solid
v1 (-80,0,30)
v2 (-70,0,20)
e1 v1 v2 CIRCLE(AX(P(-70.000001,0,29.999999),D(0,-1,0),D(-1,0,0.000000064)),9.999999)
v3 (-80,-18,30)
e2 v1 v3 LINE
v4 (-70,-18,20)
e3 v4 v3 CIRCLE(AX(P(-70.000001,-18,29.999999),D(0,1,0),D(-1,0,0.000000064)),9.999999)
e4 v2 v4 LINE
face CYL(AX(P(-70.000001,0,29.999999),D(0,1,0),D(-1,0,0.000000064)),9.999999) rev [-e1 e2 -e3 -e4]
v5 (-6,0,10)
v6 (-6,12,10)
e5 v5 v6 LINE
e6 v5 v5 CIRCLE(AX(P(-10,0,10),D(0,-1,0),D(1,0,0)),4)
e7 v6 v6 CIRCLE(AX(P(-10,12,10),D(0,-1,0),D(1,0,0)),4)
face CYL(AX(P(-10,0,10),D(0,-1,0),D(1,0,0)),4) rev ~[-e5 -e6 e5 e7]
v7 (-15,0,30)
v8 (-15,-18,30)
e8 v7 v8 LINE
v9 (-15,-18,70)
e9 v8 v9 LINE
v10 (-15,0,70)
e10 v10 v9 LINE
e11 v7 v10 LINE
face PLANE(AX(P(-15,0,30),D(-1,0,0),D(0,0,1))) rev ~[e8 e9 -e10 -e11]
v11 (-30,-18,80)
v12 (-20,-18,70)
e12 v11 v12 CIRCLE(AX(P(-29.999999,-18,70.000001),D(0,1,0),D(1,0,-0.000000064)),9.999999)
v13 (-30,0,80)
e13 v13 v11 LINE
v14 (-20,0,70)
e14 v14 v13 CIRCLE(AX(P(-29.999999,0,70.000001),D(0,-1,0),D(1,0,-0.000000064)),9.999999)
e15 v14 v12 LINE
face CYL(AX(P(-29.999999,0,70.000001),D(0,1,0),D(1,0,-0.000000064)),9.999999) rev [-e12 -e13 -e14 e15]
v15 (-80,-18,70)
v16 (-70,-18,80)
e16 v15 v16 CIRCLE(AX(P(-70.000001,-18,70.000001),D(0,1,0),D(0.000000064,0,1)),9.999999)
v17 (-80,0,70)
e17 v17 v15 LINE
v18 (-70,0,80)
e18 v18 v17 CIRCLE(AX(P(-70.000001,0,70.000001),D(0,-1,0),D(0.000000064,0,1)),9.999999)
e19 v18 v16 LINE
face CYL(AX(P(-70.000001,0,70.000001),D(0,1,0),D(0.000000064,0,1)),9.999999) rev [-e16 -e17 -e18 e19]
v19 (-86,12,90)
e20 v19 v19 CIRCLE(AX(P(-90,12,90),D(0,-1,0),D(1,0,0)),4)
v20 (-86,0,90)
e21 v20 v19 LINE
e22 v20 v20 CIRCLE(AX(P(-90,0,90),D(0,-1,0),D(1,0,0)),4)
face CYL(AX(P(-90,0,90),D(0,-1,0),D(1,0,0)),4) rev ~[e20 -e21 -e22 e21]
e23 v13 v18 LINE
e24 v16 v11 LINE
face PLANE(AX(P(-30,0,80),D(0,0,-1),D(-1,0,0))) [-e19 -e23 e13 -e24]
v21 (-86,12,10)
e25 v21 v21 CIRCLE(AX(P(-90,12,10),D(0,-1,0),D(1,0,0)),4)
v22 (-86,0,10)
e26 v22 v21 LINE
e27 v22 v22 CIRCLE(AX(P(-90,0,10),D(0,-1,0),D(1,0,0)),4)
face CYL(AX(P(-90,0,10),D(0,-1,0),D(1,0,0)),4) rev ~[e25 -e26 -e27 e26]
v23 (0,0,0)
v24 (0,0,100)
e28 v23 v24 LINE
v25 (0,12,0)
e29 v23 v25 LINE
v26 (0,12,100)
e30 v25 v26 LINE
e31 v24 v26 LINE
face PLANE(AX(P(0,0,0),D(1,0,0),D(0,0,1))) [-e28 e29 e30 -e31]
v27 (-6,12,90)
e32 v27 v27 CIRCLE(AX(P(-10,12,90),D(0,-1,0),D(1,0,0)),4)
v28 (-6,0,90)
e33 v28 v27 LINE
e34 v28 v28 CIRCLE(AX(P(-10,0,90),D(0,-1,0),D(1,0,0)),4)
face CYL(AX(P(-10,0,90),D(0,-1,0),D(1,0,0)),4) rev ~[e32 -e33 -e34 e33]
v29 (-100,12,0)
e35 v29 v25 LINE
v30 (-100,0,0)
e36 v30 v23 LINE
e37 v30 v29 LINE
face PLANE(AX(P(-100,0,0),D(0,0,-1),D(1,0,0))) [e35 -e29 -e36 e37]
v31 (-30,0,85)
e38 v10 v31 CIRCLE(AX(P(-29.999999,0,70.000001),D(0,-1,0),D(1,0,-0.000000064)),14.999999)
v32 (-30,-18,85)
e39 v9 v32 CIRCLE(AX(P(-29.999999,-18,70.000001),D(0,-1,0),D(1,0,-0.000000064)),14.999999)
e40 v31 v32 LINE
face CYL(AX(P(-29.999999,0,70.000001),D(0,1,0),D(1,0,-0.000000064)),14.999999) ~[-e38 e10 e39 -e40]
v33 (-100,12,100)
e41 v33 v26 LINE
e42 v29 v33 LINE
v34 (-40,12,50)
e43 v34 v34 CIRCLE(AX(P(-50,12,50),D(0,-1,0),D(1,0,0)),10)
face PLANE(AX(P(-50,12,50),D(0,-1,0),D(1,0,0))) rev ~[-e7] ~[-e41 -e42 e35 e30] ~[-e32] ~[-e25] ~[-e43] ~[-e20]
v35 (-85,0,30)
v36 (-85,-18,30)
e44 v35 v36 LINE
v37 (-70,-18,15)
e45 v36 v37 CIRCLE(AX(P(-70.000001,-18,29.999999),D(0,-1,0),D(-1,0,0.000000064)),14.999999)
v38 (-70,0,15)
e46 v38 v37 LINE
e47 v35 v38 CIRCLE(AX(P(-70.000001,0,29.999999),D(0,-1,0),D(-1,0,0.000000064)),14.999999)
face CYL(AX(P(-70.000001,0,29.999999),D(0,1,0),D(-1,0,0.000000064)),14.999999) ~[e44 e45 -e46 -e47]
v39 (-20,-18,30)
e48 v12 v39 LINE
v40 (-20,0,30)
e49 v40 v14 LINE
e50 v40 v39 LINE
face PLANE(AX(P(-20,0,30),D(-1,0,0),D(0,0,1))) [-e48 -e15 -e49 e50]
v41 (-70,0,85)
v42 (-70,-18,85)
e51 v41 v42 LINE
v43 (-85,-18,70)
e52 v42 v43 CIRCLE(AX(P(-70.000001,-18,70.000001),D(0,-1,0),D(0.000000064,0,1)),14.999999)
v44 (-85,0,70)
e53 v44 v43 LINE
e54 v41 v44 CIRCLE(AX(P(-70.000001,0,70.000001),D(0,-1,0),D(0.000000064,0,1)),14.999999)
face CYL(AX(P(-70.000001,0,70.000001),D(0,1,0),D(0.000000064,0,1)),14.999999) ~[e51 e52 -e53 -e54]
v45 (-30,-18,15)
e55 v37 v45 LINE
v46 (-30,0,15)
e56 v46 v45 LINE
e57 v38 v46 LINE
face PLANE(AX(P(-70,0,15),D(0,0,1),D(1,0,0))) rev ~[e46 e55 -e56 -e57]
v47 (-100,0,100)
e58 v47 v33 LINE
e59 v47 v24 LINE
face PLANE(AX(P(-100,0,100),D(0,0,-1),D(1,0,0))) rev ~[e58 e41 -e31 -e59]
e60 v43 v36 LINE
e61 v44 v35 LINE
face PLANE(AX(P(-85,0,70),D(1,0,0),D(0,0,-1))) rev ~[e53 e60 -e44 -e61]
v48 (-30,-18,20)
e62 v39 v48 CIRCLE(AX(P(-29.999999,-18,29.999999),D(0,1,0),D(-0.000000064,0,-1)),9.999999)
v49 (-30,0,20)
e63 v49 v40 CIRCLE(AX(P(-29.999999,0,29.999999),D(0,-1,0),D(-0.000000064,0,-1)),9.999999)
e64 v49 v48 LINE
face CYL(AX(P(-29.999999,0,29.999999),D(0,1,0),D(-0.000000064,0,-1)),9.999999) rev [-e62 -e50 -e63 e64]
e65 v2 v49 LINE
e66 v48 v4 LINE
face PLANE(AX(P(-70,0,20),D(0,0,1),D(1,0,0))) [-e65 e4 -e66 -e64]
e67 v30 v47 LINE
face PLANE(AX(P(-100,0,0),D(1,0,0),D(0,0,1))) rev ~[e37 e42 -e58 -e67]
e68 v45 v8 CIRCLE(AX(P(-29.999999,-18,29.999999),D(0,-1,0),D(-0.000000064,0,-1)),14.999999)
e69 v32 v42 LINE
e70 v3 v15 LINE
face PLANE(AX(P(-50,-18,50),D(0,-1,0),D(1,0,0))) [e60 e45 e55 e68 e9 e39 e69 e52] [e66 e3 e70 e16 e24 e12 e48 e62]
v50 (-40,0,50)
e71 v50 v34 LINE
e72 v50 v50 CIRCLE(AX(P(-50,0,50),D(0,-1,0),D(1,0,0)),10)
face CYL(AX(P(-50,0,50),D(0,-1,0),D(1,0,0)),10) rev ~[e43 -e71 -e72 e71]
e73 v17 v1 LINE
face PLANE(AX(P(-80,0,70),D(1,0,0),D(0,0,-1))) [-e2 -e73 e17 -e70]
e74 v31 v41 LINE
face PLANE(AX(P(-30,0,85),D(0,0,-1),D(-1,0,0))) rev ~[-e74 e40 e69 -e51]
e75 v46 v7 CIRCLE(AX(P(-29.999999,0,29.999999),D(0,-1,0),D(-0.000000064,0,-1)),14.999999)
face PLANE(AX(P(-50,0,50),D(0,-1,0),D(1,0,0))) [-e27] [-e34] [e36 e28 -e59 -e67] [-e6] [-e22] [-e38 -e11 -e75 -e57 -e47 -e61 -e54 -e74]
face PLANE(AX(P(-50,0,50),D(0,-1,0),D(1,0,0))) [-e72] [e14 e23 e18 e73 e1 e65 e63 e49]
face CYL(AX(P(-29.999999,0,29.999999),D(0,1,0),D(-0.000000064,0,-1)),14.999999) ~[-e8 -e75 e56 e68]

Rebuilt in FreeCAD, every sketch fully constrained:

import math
import FreeCAD as App
import Part
import Sketcher

V = App.Vector

doc = App.newDocument("Part")
body = doc.addObject("PartDesign::Body", "Body")

# Sketch on XZ plane
sketch1 = doc.addObject("Sketcher::SketchObject", "Sketch")
body.addObject(sketch1)
sketch1.AttachmentSupport = (doc.XZ_Plane, [""])
sketch1.MapMode = "FlatFace"
sketch1.addGeometry(Part.LineSegment(V(-100, 100, 0), V(-100, 0, 0)), False)
sketch1.addGeometry(Part.LineSegment(V(-100, 0, 0), V(0, 0, 0)), False)
sketch1.addGeometry(Part.LineSegment(V(0, 0, 0), V(0, 100, 0)), False)
sketch1.addGeometry(Part.LineSegment(V(0, 100, 0), V(-100, 100, 0)), False)
sketch1.addConstraint(Sketcher.Constraint("Coincident", 0, 2, 1, 1))
sketch1.addConstraint(Sketcher.Constraint("Coincident", 1, 2, 2, 1))
sketch1.addConstraint(Sketcher.Constraint("Coincident", 2, 2, 3, 1))
sketch1.addConstraint(Sketcher.Constraint("Coincident", 3, 2, 0, 1))
sketch1.addConstraint(Sketcher.Constraint("Vertical", 0))
sketch1.addConstraint(Sketcher.Constraint("Horizontal", 1))
sketch1.addConstraint(Sketcher.Constraint("Vertical", 2))
sketch1.addConstraint(Sketcher.Constraint("Horizontal", 3))
sketch1.addConstraint(Sketcher.Constraint("Coincident", 1, 2, -1, 1))
sketch1.addConstraint(Sketcher.Constraint("Equal", 3, 0))
sketch1.addConstraint(Sketcher.Constraint("DistanceX", 1, 1, 1, 2, 100.0))
pad1 = doc.addObject("PartDesign::Pad", "Pad")
body.addObject(pad1)
pad1.Profile = sketch1
pad1.Length = 12
pad1.Reversed = True

# Sketch on XZ plane
sketch2 = doc.addObject("Sketcher::SketchObject", "Sketch001")
body.addObject(sketch2)
sketch2.AttachmentSupport = (doc.XZ_Plane, [""])
sketch2.MapMode = "FlatFace"
sketch2.addGeometry(Part.Circle(V(-90, 90, 0), V(0, 0, 1), 4), False)
sketch2.addGeometry(Part.Circle(V(-10, 90, 0), V(0, 0, 1), 4), False)
sketch2.addGeometry(Part.Circle(V(-10, 10, 0), V(0, 0, 1), 4), False)
sketch2.addGeometry(Part.Circle(V(-90, 10, 0), V(0, 0, 1), 4), False)
sketch2.addConstraint(Sketcher.Constraint("Equal", 0, 1))
sketch2.addConstraint(Sketcher.Constraint("Equal", 1, 2))
sketch2.addConstraint(Sketcher.Constraint("Equal", 2, 3))
sketch2.addConstraint(Sketcher.Constraint("Horizontal", 0, 3, 1, 3))
sketch2.addConstraint(Sketcher.Constraint("Horizontal", 2, 3, 3, 3))
sketch2.addConstraint(Sketcher.Constraint("Vertical", 1, 3, 2, 3))
sketch2.addConstraint(Sketcher.Constraint("Vertical", 0, 3, 3, 3))
sketch2.addConstraint(Sketcher.Constraint("Diameter", 0, 8.0))
sketch2.addConstraint(Sketcher.Constraint("DistanceX", 0, 3, -1, 1, 90.0))
sketch2.addConstraint(Sketcher.Constraint("DistanceY", -1, 1, 0, 3, 90.0))
sketch2.addConstraint(Sketcher.Constraint("DistanceX", 1, 3, -1, 1, 10.0))
sketch2.addConstraint(Sketcher.Constraint("DistanceY", -1, 1, 2, 3, 10.0))
pocket1 = doc.addObject("PartDesign::Pocket", "Pocket")
body.addObject(pocket1)
pocket1.Profile = sketch2
pocket1.Length = 25

# Sketch on XZ plane
sketch3 = doc.addObject("Sketcher::SketchObject", "Sketch002")
body.addObject(sketch3)
sketch3.AttachmentSupport = (doc.XZ_Plane, [""])
sketch3.MapMode = "FlatFace"
sketch3.addGeometry(Part.Circle(V(-50, 50, 0), V(0, 0, 1), 10), False)
sketch3.addConstraint(Sketcher.Constraint("Diameter", 0, 20.0))
sketch3.addConstraint(Sketcher.Constraint("DistanceX", 0, 3, -1, 1, 50.0))
sketch3.addConstraint(Sketcher.Constraint("DistanceY", -1, 1, 0, 3, 50.0))
pocket2 = doc.addObject("PartDesign::Pocket", "Pocket001")
body.addObject(pocket2)
pocket2.Profile = sketch3
pocket2.Length = 25

# Sketch on XZ plane
sketch4 = doc.addObject("Sketcher::SketchObject", "Sketch003")
body.addObject(sketch4)
sketch4.AttachmentSupport = (doc.XZ_Plane, [""])
sketch4.MapMode = "FlatFace"
sketch4.addGeometry(Part.LineSegment(V(-30, 85, 0), V(-70, 85, 0)), False)
sketch4.addGeometry(Part.ArcOfCircle(Part.Circle(V(-70, 70, 0), V(0, 0, 1), 15), math.radians(90), math.radians(180)), False)
sketch4.addGeometry(Part.LineSegment(V(-85, 70, 0), V(-85, 30, 0)), False)
sketch4.addGeometry(Part.ArcOfCircle(Part.Circle(V(-70, 30, 0), V(0, 0, 1), 15), math.radians(180), math.radians(270)), False)
sketch4.addGeometry(Part.LineSegment(V(-70, 15, 0), V(-30, 15, 0)), False)
sketch4.addGeometry(Part.ArcOfCircle(Part.Circle(V(-30, 30, 0), V(0, 0, 1), 15), math.radians(-90), math.radians(0)), False)
sketch4.addGeometry(Part.LineSegment(V(-15, 30, 0), V(-15, 70, 0)), False)
sketch4.addGeometry(Part.ArcOfCircle(Part.Circle(V(-30, 70, 0), V(0, 0, 1), 15), math.radians(0), math.radians(90)), False)
sketch4.addConstraint(Sketcher.Constraint("Tangent", 0, 2, 1, 1))
sketch4.addConstraint(Sketcher.Constraint("Tangent", 1, 2, 2, 1))
sketch4.addConstraint(Sketcher.Constraint("Tangent", 2, 2, 3, 1))
sketch4.addConstraint(Sketcher.Constraint("Tangent", 3, 2, 4, 1))
sketch4.addConstraint(Sketcher.Constraint("Tangent", 4, 2, 5, 1))
sketch4.addConstraint(Sketcher.Constraint("Tangent", 5, 2, 6, 1))
sketch4.addConstraint(Sketcher.Constraint("Tangent", 6, 2, 7, 1))
sketch4.addConstraint(Sketcher.Constraint("Tangent", 7, 2, 0, 1))
sketch4.addConstraint(Sketcher.Constraint("Horizontal", 0))
sketch4.addConstraint(Sketcher.Constraint("Vertical", 2))
sketch4.addConstraint(Sketcher.Constraint("Horizontal", 4))
sketch4.addConstraint(Sketcher.Constraint("Vertical", 6))
sketch4.addConstraint(Sketcher.Constraint("Equal", 1, 3))
sketch4.addConstraint(Sketcher.Constraint("Equal", 3, 5))
sketch4.addConstraint(Sketcher.Constraint("Equal", 5, 7))
sketch4.addConstraint(Sketcher.Constraint("Equal", 4, 2))
sketch4.addConstraint(Sketcher.Constraint("Radius", 1, 14.999999))
sketch4.addConstraint(Sketcher.Constraint("DistanceX", 0, 2, 0, 1, 40.0))
sketch4.addConstraint(Sketcher.Constraint("DistanceX", 1, 3, -1, 1, 70.000001))
sketch4.addConstraint(Sketcher.Constraint("DistanceY", -1, 1, 1, 3, 70.000001))
pad2 = doc.addObject("PartDesign::Pad", "Pad001")
body.addObject(pad2)
pad2.Profile = sketch4
pad2.Length = 18

# Sketch on XZ plane
sketch5 = doc.addObject("Sketcher::SketchObject", "Sketch004")
body.addObject(sketch5)
sketch5.AttachmentSupport = (doc.XZ_Plane, [""])
sketch5.MapMode = "FlatFace"
sketch5.addGeometry(Part.LineSegment(V(-30, 80, 0), V(-70, 80, 0)), False)
sketch5.addGeometry(Part.ArcOfCircle(Part.Circle(V(-70, 70, 0), V(0, 0, 1), 10), math.radians(90), math.radians(180)), False)
sketch5.addGeometry(Part.LineSegment(V(-80, 70, 0), V(-80, 30, 0)), False)
sketch5.addGeometry(Part.ArcOfCircle(Part.Circle(V(-70, 30, 0), V(0, 0, 1), 10), math.radians(180), math.radians(270)), False)
sketch5.addGeometry(Part.LineSegment(V(-70, 20, 0), V(-30, 20, 0)), False)
sketch5.addGeometry(Part.ArcOfCircle(Part.Circle(V(-30, 30, 0), V(0, 0, 1), 10), math.radians(-90), math.radians(0)), False)
sketch5.addGeometry(Part.LineSegment(V(-20, 30, 0), V(-20, 70, 0)), False)
sketch5.addGeometry(Part.ArcOfCircle(Part.Circle(V(-30, 70, 0), V(0, 0, 1), 10), math.radians(0), math.radians(90)), False)
sketch5.addConstraint(Sketcher.Constraint("Tangent", 0, 2, 1, 1))
sketch5.addConstraint(Sketcher.Constraint("Tangent", 1, 2, 2, 1))
sketch5.addConstraint(Sketcher.Constraint("Tangent", 2, 2, 3, 1))
sketch5.addConstraint(Sketcher.Constraint("Tangent", 3, 2, 4, 1))
sketch5.addConstraint(Sketcher.Constraint("Tangent", 4, 2, 5, 1))
sketch5.addConstraint(Sketcher.Constraint("Tangent", 5, 2, 6, 1))
sketch5.addConstraint(Sketcher.Constraint("Tangent", 6, 2, 7, 1))
sketch5.addConstraint(Sketcher.Constraint("Tangent", 7, 2, 0, 1))
sketch5.addConstraint(Sketcher.Constraint("Horizontal", 0))
sketch5.addConstraint(Sketcher.Constraint("Vertical", 2))
sketch5.addConstraint(Sketcher.Constraint("Horizontal", 4))
sketch5.addConstraint(Sketcher.Constraint("Vertical", 6))
sketch5.addConstraint(Sketcher.Constraint("Equal", 1, 3))
sketch5.addConstraint(Sketcher.Constraint("Equal", 3, 5))
sketch5.addConstraint(Sketcher.Constraint("Equal", 5, 7))
sketch5.addConstraint(Sketcher.Constraint("Equal", 4, 2))
sketch5.addConstraint(Sketcher.Constraint("Radius", 1, 9.999999))
sketch5.addConstraint(Sketcher.Constraint("DistanceX", 0, 2, 0, 1, 40.0))
sketch5.addConstraint(Sketcher.Constraint("DistanceX", 1, 3, -1, 1, 70.000001))
sketch5.addConstraint(Sketcher.Constraint("DistanceY", -1, 1, 1, 3, 70.000001))
pocket3 = doc.addObject("PartDesign::Pocket", "Pocket002")
body.addObject(pocket3)
pocket3.Profile = sketch5
pocket3.Length = 25
pocket3.Reversed = True

doc.recompute()
